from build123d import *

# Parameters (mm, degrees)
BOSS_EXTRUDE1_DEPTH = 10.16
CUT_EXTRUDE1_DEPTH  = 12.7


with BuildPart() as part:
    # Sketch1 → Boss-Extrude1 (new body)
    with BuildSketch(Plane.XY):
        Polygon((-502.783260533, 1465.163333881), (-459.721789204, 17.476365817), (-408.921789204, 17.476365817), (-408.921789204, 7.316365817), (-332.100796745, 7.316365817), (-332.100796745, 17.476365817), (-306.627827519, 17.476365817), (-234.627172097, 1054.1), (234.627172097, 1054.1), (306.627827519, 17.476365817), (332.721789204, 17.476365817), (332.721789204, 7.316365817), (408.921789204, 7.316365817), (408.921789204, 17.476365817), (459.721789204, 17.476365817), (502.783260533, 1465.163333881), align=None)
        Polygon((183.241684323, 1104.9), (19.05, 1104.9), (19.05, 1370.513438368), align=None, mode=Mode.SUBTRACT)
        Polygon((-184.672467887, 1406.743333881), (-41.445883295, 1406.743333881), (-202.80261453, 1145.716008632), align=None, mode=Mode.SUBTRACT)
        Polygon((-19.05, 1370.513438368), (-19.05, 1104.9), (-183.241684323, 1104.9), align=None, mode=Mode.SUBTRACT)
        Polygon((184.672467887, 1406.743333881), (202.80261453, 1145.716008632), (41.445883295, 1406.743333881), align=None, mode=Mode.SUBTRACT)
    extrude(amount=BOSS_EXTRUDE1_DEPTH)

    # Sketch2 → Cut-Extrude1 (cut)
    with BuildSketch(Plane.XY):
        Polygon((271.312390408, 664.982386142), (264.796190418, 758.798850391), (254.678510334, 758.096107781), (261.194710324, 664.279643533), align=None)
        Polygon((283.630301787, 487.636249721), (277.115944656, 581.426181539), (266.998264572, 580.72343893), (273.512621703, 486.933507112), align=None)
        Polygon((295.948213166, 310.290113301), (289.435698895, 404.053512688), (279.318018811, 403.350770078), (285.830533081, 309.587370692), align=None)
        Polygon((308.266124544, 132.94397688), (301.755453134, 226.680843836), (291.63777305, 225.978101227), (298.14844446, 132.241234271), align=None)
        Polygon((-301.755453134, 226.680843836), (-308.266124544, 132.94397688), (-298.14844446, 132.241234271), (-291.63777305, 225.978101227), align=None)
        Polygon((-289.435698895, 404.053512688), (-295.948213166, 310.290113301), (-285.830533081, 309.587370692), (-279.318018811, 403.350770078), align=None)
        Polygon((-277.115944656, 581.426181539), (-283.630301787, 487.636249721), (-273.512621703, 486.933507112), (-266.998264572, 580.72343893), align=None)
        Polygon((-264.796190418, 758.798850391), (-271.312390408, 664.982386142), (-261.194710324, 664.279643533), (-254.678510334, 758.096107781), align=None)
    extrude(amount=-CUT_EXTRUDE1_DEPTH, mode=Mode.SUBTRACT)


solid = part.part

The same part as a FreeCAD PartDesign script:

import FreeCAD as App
import Part
import Sketcher

V = App.Vector
Q = App.Units.Quantity


def add_polygon(sketch, points):
    """Adds a closed chain of lines whose ends are joined by coincident constraints."""
    first, n = sketch.GeometryCount, len(points)
    for a, b in zip(points, points[1:] + points[:1]):
        sketch.addGeometry(Part.LineSegment(App.Vector(*a, 0), App.Vector(*b, 0)), False)
    for i in range(n):
        sketch.addConstraint(Sketcher.Constraint("Coincident", first + i, 2, first + (i + 1) % n, 1))

doc = App.newDocument("Part")
body = doc.addObject("PartDesign::Body", "Body")

sketch1 = body.newObject("Sketcher::SketchObject", "Sketch")
sketch1.AttachmentSupport = (doc.getObject("XY_Plane"), [""])
sketch1.MapMode = "FlatFace"
add_polygon(sketch1, [(-503, 1465), (-460, 17), (-409, 17), (-409, 7), (-332, 7), (-332, 17), (-307, 17), (-235, 1054), (235, 1054), (307, 17), (333, 17), (333, 7), (409, 7), (409, 17), (460, 17), (503, 1465)])
add_polygon(sketch1, [(-183, 1105), (-19, 1371), (-19, 1105)])
add_polygon(sketch1, [(19, 1371), (183, 1105), (19, 1105)])
add_polygon(sketch1, [(-203, 1146), (-185, 1407), (-41, 1407)])
add_polygon(sketch1, [(41, 1407), (185, 1407), (203, 1146)])
sketch1.addConstraint(Sketcher.Constraint("Horizontal", 1))
sketch1.addConstraint(Sketcher.Constraint("Vertical", 2))
sketch1.addConstraint(Sketcher.Constraint("Horizontal", 3))
sketch1.addConstraint(Sketcher.Constraint("Vertical", 4))
sketch1.addConstraint(Sketcher.Constraint("Horizontal", 5))
sketch1.addConstraint(Sketcher.Constraint("Horizontal", 7))
sketch1.addConstraint(Sketcher.Constraint("Horizontal", 9))
sketch1.addConstraint(Sketcher.Constraint("Vertical", 10))
sketch1.addConstraint(Sketcher.Constraint("Horizontal", 11))
sketch1.addConstraint(Sketcher.Constraint("Vertical", 12))
sketch1.addConstraint(Sketcher.Constraint("Horizontal", 13))
sketch1.addConstraint(Sketcher.Constraint("Horizontal", 15))
sketch1.addConstraint(Sketcher.Constraint("Vertical", 17))
sketch1.addConstraint(Sketcher.Constraint("Horizontal", 18))
sketch1.addConstraint(Sketcher.Constraint("Horizontal", 20))
sketch1.addConstraint(Sketcher.Constraint("Vertical", 21))
sketch1.addConstraint(Sketcher.Constraint("Horizontal", 23))
sketch1.addConstraint(Sketcher.Constraint("Horizontal", 25))
sketch1.addConstraint(Sketcher.Constraint("Symmetric", 5, 2, 8, 2, -2))
sketch1.addConstraint(Sketcher.Constraint("Symmetric", 2, 2, 11, 2, -2))
sketch1.addConstraint(Sketcher.Constraint("Symmetric", 0, 2, 13, 2, -2))
sketch1.addConstraint(Sketcher.Constraint("Symmetric", 18, 2, 19, 2, -2))
sketch1.addConstraint(Sketcher.Constraint("Symmetric", 16, 2, 21, 2, -2))
sketch1.addConstraint(Sketcher.Constraint("Symmetric", 22, 2, 25, 2, -2))
sketch1.addConstraint(Sketcher.Constraint("Symmetric", 24, 2, 26, 2, -2))
sketch1.addConstraint(Sketcher.Constraint("Parallel", 6, 22))
sketch1.addConstraint(Sketcher.Constraint("Parallel", 16, 24))
sketch1.addConstraint(Sketcher.Constraint("Parallel", 8, 26))
sketch1.addConstraint(Sketcher.Constraint("Parallel", 19, 27))
sketch1.addConstraint(Sketcher.Constraint("Horizontal", 1, 2, 4, 2))
sketch1.addConstraint(Sketcher.Constraint("Equal", 0, 14))
sketch1.addConstraint(Sketcher.Constraint("DistanceX", 1, 1, 1, 2, Q("2 in")))
sketch1.addConstraint(Sketcher.Constraint("DistanceX", 11, 1, 11, 2, Q("3 in")))
sketch1.addConstraint(Sketcher.Constraint("DistanceY", 2, 2, 2, 1, Q("0.4 in")))
sketch1.addConstraint(Sketcher.Constraint("DistanceY", 6, 2, 17, 2, Q("2 in")))
sketch1.addConstraint(Sketcher.Constraint("DistanceY", -1, 1, 6, 2, Q("41.5 in")))
sketch1.addConstraint(Sketcher.Constraint("DistanceX", 17, 2, 20, 2, Q("1.5 in")))
sketch1.addConstraint(Sketcher.Constraint("DistanceY", 22, 2, 15, 2, Q("2.3 in")))
sketch1.addConstraint(Sketcher.Constraint("Distance", 22, 261.6562))
sketch1.addConstraint(Sketcher.Constraint("DistanceX", 5, 1, 5, 2, 25.472969))
sketch1.addConstraint(Sketcher.Constraint("DistanceX", 9, 1, 9, 2, 26.093962))
sketch1.addConstraint(Sketcher.Constraint("DistanceX", 15, 2, 15, 1, 1005.566521))
sketch1.addConstraint(Sketcher.Constraint("DistanceY", 17, 2, 17, 1, 265.613438))
sketch1.addConstraint(Sketcher.Constraint("DistanceX", 5, 2, 7, 2, 541.255))
sketch1.addConstraint(Sketcher.Constraint("Distance", 0, 1448.327259))
sketch1.addConstraint(Sketcher.Constraint("Distance", 24, 306.87336))
sketch1.addConstraint(Sketcher.Constraint("DistanceX", 7, 1, 7, 2, 469.254344))
sketch1.addConstraint(Sketcher.Constraint("DistanceY", -1, 1, 24, 2, 1145.716009))
sketch1.addConstraint(Sketcher.Constraint("DistanceX", 24, 2, 18, 2, 19.56093))
pad1 = body.newObject("PartDesign::Pad", "Pad")
pad1.Profile = sketch1
pad1.Length = Q("0.4 in")

sketch2 = body.newObject("Sketcher::SketchObject", "Sketch001")
sketch2.AttachmentSupport = (doc.getObject("XY_Plane"), [""])
sketch2.MapMode = "FlatFace"
add_polygon(sketch2, [(271, 665), (265, 759), (255, 758), (261, 664)])
add_polygon(sketch2, [(284, 488), (277, 581), (267, 581), (274, 487)])
add_polygon(sketch2, [(296, 310), (289, 404), (279, 403), (286, 310)])
add_polygon(sketch2, [(308, 133), (302, 227), (292, 226), (298, 132)])
add_polygon(sketch2, [(-302, 227), (-308, 133), (-298, 132), (-292, 226)])
add_polygon(sketch2, [(-289, 404), (-296, 310), (-286, 310), (-279, 403)])
add_polygon(sketch2, [(-277, 581), (-284, 488), (-274, 487), (-267, 581)])
add_polygon(sketch2, [(-265, 759), (-271, 665), (-261, 664), (-255, 758)])
sketch2.addConstraint(Sketcher.Constraint("Symmetric", 15, 2, 16, 2, -2))
sketch2.addConstraint(Sketcher.Constraint("Symmetric", 14, 2, 17, 2, -2))
sketch2.addConstraint(Sketcher.Constraint("Symmetric", 13, 2, 18, 2, -2))
sketch2.addConstraint(Sketcher.Constraint("Symmetric", 12, 2, 19, 2, -2))
sketch2.addConstraint(Sketcher.Constraint("Symmetric", 11, 2, 20, 2, -2))
sketch2.addConstraint(Sketcher.Constraint("Symmetric", 10, 2, 21, 2, -2))
sketch2.addConstraint(Sketcher.Constraint("Symmetric", 9, 2, 22, 2, -2))
sketch2.addConstraint(Sketcher.Constraint("Symmetric", 8, 2, 23, 2, -2))
sketch2.addConstraint(Sketcher.Constraint("Symmetric", 7, 2, 24, 2, -2))
sketch2.addConstraint(Sketcher.Constraint("Symmetric", 6, 2, 25, 2, -2))
sketch2.addConstraint(Sketcher.Constraint("Symmetric", 5, 2, 26, 2, -2))
sketch2.addConstraint(Sketcher.Constraint("Symmetric", 4, 2, 27, 2, -2))
sketch2.addConstraint(Sketcher.Constraint("Symmetric", 3, 2, 28, 2, -2))
sketch2.addConstraint(Sketcher.Constraint("Symmetric", 2, 2, 29, 2, -2))
sketch2.addConstraint(Sketcher.Constraint("Symmetric", 1, 2, 30, 2, -2))
sketch2.addConstraint(Sketcher.Constraint("Symmetric", 0, 2, 31, 2, -2))
sketch2.addConstraint(Sketcher.Constraint("Perpendicular", 0, 1))
sketch2.addConstraint(Sketcher.Constraint("Perpendicular", 1, 2))
sketch2.addConstraint(Sketcher.Constraint("Perpendicular", 2, 3))
sketch2.addConstraint(Sketcher.Constraint("Perpendicular", 3, 4))
sketch2.addConstraint(Sketcher.Constraint("Perpendicular", 4, 5))
sketch2.addConstraint(Sketcher.Constraint("Perpendicular", 5, 6))
sketch2.addConstraint(Sketcher.Constraint("Perpendicular", 6, 7))
sketch2.addConstraint(Sketcher.Constraint("Perpendicular", 7, 8))
sketch2.addConstraint(Sketcher.Constraint("Perpendicular", 8, 9))
sketch2.addConstraint(Sketcher.Constraint("Perpendicular", 9, 10))
sketch2.addConstraint(Sketcher.Constraint("Perpendicular", 10, 11))
sketch2.addConstraint(Sketcher.Constraint("Perpendicular", 11, 12))
sketch2.addConstraint(Sketcher.Constraint("Perpendicular", 12, 13))
sketch2.addConstraint(Sketcher.Constraint("Perpendicular", 13, 14))
sketch2.addConstraint(Sketcher.Constraint("Perpendicular", 14, 15))
sketch2.addConstraint(Sketcher.Constraint("Equal", 3, 5))
sketch2.addConstraint(Sketcher.Constraint("Equal", 7, 9))
sketch2.addConstraint(Sketcher.Constraint("Equal", 11, 13))
sketch2.addConstraint(Sketcher.Constraint("Distance", 12, 93.9627))
sketch2.addConstraint(Sketcher.Constraint("DistanceX", -1, 1, 7, 2, 283.630302))
sketch2.addConstraint(Sketcher.Constraint("DistanceX", -1, 1, 8, 2, 289.435699))
sketch2.addConstraint(Sketcher.Constraint("DistanceY", -1, 1, 13, 2, 225.978101))
sketch2.addConstraint(Sketcher.Constraint("DistanceX", 1, 2, 2, 2, 6.5162))
sketch2.addConstraint(Sketcher.Constraint("DistanceY", 6, 2, 1, 2, 271.162601))
sketch2.addConstraint(Sketcher.Constraint("DistanceY", 10, 2, 9, 2, 93.763399))
sketch2.addConstraint(Sketcher.Constraint("Distance", 0, 94.042489))
sketch2.addConstraint(Sketcher.Constraint("DistanceX", -1, 1, 0, 2, 264.79619))
sketch2.addConstraint(Sketcher.Constraint("DistanceY", -1, 1, 0, 2, 758.79885))
sketch2.addConstraint(Sketcher.Constraint("DistanceX", -1, 1, 1, 2, 254.67851))
sketch2.addConstraint(Sketcher.Constraint("DistanceY", -1, 1, 4, 2, 581.426182))
sketch2.addConstraint(Sketcher.Constraint("DistanceY", -1, 1, 9, 2, 403.35077))
sketch2.addConstraint(Sketcher.Constraint("DistanceX", 11, 2, 12, 2, 5.80724))
pocket1 = body.newObject("PartDesign::Pocket", "Pocket")
pocket1.Profile = sketch2
pocket1.Length = Q("0.5 in")

doc.recompute()
